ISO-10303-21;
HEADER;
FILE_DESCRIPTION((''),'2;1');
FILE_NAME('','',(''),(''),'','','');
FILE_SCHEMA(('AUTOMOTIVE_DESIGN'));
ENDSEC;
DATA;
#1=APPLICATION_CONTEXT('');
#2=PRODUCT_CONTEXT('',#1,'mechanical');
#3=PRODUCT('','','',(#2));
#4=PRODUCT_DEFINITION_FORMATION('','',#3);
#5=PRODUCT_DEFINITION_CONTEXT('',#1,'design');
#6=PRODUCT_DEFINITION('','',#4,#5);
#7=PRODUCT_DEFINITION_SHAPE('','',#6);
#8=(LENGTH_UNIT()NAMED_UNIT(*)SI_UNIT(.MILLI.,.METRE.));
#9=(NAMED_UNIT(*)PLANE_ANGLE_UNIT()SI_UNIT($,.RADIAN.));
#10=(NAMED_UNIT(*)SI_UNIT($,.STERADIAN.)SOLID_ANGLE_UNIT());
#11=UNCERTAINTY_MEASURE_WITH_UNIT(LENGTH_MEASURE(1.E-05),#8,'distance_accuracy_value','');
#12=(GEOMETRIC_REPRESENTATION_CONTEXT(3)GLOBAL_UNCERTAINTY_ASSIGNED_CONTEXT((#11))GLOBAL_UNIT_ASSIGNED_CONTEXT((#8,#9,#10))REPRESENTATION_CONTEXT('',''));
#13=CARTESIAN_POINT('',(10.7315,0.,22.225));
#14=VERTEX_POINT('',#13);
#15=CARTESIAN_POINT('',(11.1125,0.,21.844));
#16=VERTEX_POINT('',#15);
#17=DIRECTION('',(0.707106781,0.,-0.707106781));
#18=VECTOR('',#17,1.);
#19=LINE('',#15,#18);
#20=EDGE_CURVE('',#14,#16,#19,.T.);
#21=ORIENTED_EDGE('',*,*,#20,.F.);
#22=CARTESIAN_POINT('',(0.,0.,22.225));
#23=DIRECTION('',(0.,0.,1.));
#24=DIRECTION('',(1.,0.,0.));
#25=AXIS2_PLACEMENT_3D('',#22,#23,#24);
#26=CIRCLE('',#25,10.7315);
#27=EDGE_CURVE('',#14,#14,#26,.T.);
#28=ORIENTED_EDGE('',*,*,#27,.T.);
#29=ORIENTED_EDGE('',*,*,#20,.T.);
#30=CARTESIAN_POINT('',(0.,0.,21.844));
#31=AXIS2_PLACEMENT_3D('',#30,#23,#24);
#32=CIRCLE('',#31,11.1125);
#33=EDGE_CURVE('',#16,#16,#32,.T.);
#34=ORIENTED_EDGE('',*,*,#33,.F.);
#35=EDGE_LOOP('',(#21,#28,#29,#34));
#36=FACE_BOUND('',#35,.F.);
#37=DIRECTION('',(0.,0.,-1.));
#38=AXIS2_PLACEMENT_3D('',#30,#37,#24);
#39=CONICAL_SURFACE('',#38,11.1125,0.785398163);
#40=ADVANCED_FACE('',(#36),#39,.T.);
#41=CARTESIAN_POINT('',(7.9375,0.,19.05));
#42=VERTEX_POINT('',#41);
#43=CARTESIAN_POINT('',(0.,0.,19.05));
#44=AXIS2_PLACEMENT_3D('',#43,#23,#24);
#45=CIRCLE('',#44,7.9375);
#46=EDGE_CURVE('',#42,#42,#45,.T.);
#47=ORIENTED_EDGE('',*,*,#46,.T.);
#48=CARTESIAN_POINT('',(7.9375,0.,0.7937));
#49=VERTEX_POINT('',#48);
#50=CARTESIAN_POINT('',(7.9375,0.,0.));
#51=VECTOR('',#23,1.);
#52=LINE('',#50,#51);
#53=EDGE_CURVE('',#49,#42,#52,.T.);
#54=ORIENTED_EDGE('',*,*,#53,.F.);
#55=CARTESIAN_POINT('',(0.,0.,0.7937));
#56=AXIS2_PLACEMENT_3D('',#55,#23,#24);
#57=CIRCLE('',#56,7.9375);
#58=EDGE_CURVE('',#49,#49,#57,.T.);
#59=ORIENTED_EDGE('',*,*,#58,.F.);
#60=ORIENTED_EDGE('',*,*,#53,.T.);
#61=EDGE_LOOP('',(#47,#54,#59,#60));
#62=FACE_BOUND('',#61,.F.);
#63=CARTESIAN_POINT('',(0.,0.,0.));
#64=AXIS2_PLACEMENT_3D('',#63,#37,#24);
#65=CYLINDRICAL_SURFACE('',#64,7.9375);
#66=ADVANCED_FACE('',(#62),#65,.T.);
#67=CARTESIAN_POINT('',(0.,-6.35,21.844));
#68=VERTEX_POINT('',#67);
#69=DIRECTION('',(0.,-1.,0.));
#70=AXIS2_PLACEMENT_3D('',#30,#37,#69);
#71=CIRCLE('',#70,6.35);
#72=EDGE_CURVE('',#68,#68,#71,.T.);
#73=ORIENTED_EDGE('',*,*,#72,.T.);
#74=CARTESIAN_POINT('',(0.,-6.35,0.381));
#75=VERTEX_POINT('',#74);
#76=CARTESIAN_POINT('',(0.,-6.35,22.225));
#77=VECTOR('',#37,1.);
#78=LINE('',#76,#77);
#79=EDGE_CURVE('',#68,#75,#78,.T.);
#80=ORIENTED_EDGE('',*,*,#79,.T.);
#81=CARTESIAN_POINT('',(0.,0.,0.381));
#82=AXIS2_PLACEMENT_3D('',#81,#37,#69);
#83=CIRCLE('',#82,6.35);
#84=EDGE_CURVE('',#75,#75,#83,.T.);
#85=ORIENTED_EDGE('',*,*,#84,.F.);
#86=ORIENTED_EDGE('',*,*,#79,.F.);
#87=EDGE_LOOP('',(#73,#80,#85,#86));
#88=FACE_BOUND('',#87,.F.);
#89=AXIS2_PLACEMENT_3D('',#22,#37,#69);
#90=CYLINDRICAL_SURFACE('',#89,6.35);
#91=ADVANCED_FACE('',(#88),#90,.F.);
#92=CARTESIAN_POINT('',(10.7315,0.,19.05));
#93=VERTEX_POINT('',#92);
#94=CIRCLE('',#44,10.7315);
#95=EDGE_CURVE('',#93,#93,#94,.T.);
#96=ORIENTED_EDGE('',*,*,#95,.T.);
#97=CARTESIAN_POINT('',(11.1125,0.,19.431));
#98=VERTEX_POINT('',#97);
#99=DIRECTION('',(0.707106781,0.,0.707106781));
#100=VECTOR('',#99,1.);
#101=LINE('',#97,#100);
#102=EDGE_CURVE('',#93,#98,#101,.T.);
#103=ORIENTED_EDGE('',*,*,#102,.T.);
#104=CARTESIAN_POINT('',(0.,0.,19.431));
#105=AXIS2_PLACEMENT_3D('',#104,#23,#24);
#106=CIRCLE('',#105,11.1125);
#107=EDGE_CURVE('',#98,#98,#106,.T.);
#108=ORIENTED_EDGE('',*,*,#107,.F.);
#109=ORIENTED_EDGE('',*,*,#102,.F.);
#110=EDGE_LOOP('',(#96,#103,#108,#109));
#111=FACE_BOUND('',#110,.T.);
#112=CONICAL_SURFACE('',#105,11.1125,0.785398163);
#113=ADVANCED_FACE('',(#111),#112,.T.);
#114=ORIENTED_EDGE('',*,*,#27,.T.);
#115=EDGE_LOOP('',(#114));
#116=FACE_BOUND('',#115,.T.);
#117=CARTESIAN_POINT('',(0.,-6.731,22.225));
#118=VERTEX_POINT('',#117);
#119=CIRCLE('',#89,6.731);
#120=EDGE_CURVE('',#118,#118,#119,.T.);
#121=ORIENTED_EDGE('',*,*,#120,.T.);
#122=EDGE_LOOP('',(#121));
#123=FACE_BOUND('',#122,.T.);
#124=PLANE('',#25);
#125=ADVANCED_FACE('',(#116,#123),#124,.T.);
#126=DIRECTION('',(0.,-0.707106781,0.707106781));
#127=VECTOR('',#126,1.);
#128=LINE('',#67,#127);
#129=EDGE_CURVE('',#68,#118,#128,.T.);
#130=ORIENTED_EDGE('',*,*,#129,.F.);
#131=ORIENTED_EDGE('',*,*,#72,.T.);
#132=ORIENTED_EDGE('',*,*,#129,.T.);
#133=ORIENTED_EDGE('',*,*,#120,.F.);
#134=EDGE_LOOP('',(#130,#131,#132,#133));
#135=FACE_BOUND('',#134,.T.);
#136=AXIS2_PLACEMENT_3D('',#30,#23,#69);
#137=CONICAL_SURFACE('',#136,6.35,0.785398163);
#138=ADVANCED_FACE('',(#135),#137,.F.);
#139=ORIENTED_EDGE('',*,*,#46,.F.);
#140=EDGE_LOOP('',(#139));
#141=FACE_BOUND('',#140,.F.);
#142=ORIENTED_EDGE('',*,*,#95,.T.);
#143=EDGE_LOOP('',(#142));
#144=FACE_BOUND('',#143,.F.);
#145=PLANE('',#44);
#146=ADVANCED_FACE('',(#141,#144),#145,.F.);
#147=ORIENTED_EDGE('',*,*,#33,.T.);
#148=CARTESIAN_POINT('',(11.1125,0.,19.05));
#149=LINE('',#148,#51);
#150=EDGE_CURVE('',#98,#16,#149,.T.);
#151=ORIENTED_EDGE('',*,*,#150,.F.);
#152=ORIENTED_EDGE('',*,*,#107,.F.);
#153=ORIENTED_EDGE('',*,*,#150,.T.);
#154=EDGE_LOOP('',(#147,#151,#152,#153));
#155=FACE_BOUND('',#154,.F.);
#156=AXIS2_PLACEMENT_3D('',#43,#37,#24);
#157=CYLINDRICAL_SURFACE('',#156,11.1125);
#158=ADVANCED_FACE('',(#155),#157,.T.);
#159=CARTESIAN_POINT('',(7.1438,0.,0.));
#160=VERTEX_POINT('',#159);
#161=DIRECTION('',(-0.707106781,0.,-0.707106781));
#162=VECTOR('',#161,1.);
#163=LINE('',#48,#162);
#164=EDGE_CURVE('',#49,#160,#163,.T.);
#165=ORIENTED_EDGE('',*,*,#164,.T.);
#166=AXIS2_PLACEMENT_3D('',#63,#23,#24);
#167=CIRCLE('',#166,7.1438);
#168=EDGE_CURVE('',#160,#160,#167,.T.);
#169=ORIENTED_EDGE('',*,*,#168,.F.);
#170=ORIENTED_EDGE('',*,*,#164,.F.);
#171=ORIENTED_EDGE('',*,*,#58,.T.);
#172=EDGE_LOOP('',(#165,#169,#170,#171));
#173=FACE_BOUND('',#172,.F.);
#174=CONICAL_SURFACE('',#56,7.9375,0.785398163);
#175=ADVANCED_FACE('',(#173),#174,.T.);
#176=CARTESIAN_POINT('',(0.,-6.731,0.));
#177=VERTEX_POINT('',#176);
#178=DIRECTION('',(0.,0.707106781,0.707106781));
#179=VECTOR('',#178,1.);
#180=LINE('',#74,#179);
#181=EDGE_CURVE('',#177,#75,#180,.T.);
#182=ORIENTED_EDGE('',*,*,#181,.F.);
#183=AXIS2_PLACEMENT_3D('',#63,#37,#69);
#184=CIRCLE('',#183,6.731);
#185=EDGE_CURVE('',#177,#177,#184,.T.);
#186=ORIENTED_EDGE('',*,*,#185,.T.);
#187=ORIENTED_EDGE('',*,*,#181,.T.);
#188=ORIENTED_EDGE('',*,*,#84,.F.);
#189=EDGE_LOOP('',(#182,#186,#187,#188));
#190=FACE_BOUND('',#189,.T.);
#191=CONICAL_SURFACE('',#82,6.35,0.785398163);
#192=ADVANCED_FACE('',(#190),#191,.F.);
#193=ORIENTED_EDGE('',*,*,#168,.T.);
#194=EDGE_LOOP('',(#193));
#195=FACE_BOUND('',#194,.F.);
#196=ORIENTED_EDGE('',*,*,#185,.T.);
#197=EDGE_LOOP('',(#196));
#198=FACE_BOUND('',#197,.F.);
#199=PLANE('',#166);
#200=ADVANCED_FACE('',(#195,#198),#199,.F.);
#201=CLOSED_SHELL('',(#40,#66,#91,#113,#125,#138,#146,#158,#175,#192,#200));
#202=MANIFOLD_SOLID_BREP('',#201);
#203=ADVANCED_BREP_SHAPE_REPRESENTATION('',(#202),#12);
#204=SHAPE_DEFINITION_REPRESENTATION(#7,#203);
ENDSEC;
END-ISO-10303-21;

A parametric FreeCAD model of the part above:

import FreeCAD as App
import Part
import Sketcher
from FreeCAD import Vector
Q = App.Units.Quantity


def edges_at(feature, points):
    """Names of the edges that pass closest to the given points."""
    edges = feature.Shape.Edges
    near = lambda p: min(range(len(edges)), key=lambda i: edges[i].distToShape(Part.Vertex(*p))[0])
    return sorted({f"Edge{near(p) + 1}" for p in points})

doc = App.newDocument("Part")
body = doc.addObject("PartDesign::Body", "Body")

# Sketch on XY plane
sketch1 = doc.addObject("Sketcher::SketchObject", "Sketch")
body.addObject(sketch1)
sketch1.AttachmentSupport = (doc.XY_Plane, [""])
sketch1.MapMode = "FlatFace"
sketch1.addGeometry(Part.Circle(Vector(0, 0, 0), Vector(0, 0, 1), 7.9375), False)
sketch1.addConstraint([
    Sketcher.Constraint("Coincident", 0, 3, -1, 1),
    Sketcher.Constraint("Diameter", 0, Q("0.625 in")),
])
pad1 = doc.addObject("PartDesign::Pad", "Pad")
body.addObject(pad1)
pad1.Profile = sketch1
pad1.Length = Q("0.75 in")

# Sketch on XY plane
sketch2 = doc.addObject("Sketcher::SketchObject", "Sketch001")
body.addObject(sketch2)
sketch2.AttachmentSupport = (doc.XY_Plane, [""])
sketch2.MapMode = "FlatFace"
sketch2.AttachmentOffset = App.Placement(Vector(0, 0, 0.75 * 25.4), App.Rotation())
sketch2.addGeometry(Part.Circle(Vector(0, 0, 0), Vector(0, 0, 1), 11.1125), False)
sketch2.addConstraint([
    Sketcher.Constraint("Coincident", 0, 3, -1, 1),
    Sketcher.Constraint("Diameter", 0, Q("0.875 in")),
])
pad2 = doc.addObject("PartDesign::Pad", "Pad001")
body.addObject(pad2)
pad2.Profile = sketch2
pad2.Length = Q("0.125 in")
doc.recompute()

chamfer = doc.addObject("PartDesign::Chamfer", "Chamfer")
body.addObject(chamfer)
chamfer.Base = (pad2, edges_at(pad2, [(-7.938, 0, 0)]))
chamfer.Size = Q("0.031248 in")

# Sketch on XY plane
sketch3 = doc.addObject("Sketcher::SketchObject", "Sketch002")
body.addObject(sketch3)
sketch3.AttachmentSupport = (doc.XY_Plane, [""])
sketch3.MapMode = "FlatFace"
sketch3.AttachmentOffset = App.Placement(Vector(0, 0, 0.875 * 25.4), App.Rotation())
sketch3.addGeometry(Part.Circle(Vector(0, 0, 0), Vector(0, 0, 1), 6.35), False)
sketch3.addConstraint([
    Sketcher.Constraint("Coincident", 0, 3, -1, 1),
    Sketcher.Constraint("Diameter", 0, Q("0.5 in")),
])
doc.recompute()
hole = doc.addObject("PartDesign::Hole", "Hole")
body.addObject(hole)
hole.Profile = sketch3
hole.ThreadType = "None"
hole.Diameter = Q("0.5 in")
hole.DepthType = "ThroughAll"
doc.recompute()

chamfer2 = doc.addObject("PartDesign::Chamfer", "Chamfer001")
body.addObject(chamfer2)
chamfer2.Base = (hole, edges_at(hole, [(0, 6.35, 22.225), (0, 6.35, 0)]))
chamfer2.Size = Q("0.015 in")
doc.recompute()

chamfer3 = doc.addObject("PartDesign::Chamfer", "Chamfer002")
body.addObject(chamfer3)
chamfer3.Base = (chamfer2, edges_at(chamfer2, [(-11.113, 0, 22.225), (-11.113, 0, 19.05)]))
chamfer3.Size = Q("0.015 in")

doc.recompute()
